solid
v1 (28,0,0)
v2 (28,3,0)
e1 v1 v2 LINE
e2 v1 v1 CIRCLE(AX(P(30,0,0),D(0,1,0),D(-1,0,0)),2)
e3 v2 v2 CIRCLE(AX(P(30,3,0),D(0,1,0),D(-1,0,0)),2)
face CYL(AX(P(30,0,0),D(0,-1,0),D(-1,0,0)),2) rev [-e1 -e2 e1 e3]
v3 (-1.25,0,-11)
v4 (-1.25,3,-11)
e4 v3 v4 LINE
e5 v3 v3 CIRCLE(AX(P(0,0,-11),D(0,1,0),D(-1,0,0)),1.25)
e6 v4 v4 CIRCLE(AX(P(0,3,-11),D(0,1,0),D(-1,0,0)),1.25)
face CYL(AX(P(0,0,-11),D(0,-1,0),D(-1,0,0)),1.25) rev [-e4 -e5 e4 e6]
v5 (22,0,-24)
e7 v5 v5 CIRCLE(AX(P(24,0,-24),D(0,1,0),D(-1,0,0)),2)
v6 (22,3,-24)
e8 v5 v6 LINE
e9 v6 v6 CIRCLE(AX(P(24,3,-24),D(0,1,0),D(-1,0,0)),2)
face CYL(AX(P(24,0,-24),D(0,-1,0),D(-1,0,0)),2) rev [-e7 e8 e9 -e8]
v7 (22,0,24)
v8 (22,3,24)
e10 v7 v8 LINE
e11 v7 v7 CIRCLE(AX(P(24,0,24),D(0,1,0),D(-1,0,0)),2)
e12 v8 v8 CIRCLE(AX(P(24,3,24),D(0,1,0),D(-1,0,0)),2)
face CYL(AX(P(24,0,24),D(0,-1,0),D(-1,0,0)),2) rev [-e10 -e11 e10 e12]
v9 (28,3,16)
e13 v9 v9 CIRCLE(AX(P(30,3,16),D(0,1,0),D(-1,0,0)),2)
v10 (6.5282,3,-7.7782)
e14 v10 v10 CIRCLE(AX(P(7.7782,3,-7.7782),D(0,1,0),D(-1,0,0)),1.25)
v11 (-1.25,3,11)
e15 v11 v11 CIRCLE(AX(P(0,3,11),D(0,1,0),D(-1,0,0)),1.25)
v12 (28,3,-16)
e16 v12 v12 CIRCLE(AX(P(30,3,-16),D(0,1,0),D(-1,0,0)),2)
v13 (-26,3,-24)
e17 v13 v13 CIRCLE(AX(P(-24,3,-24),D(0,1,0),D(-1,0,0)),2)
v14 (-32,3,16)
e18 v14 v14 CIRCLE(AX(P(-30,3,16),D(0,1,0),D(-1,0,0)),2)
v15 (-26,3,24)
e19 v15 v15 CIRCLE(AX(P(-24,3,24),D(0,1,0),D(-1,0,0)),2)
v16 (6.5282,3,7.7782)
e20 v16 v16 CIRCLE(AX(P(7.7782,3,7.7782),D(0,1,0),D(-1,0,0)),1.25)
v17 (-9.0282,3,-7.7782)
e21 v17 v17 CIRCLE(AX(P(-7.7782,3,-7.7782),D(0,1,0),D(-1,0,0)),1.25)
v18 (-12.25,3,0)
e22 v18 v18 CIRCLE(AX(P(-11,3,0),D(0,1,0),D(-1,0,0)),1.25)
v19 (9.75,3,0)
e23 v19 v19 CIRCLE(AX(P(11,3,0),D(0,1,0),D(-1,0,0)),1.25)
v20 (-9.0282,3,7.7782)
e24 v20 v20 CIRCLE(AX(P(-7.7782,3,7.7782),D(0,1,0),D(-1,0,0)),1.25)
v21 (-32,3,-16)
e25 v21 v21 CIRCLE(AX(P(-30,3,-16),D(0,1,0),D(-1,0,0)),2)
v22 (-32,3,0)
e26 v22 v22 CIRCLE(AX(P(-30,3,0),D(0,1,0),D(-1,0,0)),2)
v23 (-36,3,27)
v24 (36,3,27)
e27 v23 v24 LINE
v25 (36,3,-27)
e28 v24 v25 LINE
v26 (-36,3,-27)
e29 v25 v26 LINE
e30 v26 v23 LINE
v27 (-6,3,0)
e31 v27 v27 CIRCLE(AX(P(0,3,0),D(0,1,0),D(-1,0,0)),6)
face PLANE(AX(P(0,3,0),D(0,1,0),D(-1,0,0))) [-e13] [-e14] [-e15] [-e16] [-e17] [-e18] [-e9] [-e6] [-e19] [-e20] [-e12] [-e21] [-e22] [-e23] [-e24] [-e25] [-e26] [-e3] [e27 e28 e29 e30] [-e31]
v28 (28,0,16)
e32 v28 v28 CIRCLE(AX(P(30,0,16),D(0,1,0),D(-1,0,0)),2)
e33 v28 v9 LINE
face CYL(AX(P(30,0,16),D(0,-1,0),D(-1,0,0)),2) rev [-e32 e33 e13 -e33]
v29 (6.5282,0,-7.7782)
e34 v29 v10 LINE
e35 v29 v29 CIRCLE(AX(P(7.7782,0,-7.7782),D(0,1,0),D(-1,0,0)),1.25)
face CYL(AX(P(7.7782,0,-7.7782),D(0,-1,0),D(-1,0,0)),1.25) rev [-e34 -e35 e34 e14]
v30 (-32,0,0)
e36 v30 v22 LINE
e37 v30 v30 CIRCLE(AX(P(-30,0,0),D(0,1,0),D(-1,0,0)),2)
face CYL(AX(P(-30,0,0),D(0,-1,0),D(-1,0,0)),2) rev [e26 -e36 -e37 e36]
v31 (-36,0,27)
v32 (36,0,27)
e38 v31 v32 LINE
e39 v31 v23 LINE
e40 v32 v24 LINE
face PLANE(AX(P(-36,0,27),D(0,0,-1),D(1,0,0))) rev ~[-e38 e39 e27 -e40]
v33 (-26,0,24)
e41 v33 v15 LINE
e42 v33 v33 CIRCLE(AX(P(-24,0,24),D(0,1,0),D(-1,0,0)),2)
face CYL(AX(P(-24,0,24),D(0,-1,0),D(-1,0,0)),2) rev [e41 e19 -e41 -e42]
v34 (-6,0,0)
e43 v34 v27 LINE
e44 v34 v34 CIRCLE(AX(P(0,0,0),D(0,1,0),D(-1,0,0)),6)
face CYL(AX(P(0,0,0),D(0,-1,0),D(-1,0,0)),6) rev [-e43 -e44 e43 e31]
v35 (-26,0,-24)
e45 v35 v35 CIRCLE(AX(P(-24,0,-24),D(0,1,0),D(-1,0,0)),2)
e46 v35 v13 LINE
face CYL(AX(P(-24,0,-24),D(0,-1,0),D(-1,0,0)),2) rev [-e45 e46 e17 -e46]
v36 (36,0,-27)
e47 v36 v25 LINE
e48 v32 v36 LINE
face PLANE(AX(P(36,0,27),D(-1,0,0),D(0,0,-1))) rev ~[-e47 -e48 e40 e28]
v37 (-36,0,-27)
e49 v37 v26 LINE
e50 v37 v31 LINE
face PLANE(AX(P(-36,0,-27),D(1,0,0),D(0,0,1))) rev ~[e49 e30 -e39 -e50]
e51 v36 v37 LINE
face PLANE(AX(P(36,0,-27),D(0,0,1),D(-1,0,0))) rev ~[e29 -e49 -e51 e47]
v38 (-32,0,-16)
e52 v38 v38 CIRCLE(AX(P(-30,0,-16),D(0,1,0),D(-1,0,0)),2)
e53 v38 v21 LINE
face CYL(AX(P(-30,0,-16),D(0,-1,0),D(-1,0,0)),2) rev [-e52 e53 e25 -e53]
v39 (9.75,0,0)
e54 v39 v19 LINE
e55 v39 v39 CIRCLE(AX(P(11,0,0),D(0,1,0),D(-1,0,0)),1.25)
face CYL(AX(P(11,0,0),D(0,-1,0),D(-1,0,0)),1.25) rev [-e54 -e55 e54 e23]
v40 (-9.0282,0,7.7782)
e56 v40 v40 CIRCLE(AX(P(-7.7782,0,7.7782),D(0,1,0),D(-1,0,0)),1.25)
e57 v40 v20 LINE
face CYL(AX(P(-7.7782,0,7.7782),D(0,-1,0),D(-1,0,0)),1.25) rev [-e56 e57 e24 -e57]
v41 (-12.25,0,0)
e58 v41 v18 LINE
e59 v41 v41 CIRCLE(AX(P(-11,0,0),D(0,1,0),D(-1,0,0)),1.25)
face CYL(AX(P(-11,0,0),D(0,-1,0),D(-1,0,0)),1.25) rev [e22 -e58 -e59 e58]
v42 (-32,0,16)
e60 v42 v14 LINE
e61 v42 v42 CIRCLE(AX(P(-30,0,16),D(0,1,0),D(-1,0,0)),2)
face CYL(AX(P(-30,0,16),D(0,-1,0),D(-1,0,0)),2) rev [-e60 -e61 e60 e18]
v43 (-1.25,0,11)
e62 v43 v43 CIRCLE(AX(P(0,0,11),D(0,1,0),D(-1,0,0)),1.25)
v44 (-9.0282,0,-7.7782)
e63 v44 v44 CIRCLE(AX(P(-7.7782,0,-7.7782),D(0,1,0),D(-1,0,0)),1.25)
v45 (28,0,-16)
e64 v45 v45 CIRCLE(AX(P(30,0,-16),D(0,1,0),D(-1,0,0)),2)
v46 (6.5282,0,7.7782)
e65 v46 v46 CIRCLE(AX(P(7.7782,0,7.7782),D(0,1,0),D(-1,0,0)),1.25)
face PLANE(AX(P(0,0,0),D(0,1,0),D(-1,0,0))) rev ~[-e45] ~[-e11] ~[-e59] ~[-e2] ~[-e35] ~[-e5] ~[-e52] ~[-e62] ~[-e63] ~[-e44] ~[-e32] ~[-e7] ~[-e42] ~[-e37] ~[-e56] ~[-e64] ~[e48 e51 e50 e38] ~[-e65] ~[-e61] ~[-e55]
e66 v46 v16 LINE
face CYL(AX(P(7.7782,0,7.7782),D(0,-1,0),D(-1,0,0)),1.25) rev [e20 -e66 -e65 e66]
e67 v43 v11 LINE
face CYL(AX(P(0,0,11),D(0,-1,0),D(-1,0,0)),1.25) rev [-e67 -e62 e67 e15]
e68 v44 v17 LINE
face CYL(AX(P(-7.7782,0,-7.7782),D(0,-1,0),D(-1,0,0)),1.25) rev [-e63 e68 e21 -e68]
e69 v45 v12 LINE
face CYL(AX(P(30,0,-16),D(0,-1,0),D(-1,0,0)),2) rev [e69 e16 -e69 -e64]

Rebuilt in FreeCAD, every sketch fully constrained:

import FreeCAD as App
import Part
import Sketcher
from FreeCAD import Vector

doc = App.newDocument("Part")
body = doc.addObject("PartDesign::Body", "Body")

# Sketch on XZ plane
sketch1 = body.newObject("Sketcher::SketchObject", "Sketch")
sketch1.AttachmentSupport = (doc.getObject("XZ_Plane"), [""])
sketch1.MapMode = "FlatFace"
sketch1.addGeometry([
    Part.LineSegment(Vector(-36, -27, 0), Vector(-36, 27, 0)),  # 0
    Part.LineSegment(Vector(-36, 27, 0), Vector(36, 27, 0)),  # 1
    Part.LineSegment(Vector(36, 27, 0), Vector(36, -27, 0)),  # 2
    Part.LineSegment(Vector(36, -27, 0), Vector(-36, -27, 0)),  # 3
    Part.Circle(Vector(24, -24, 0), Vector(0, 0, 1), 2),  # 4
    Part.Circle(Vector(30, -16, 0), Vector(0, 0, 1), 2),  # 5
    Part.Circle(Vector(7.8, -7.8, 0), Vector(0, 0, 1), 1.2),  # 6
    Part.Circle(Vector(-24, -24, 0), Vector(0, 0, 1), 2),  # 7
    Part.Circle(Vector(-30, -16, 0), Vector(0, 0, 1), 2),  # 8
    Part.Circle(Vector(0, -11, 0), Vector(0, 0, 1), 1.2),  # 9
    Part.Circle(Vector(-7.8, -7.8, 0), Vector(0, 0, 1), 1.2),  # 10
    Part.Circle(Vector(30, 0, 0), Vector(0, 0, 1), 2),  # 11
    Part.Circle(Vector(11, 0, 0), Vector(0, 0, 1), 1.2),  # 12
    Part.Circle(Vector(7.8, 7.8, 0), Vector(0, 0, 1), 1.2),  # 13
    Part.Circle(Vector(30, 16, 0), Vector(0, 0, 1), 2),  # 14
    Part.Circle(Vector(24, 24, 0), Vector(0, 0, 1), 2),  # 15
    Part.Circle(Vector(0, 0, 0), Vector(0, 0, 1), 6),  # 16
    Part.Circle(Vector(-11, 0, 0), Vector(0, 0, 1), 1.2),  # 17
    Part.Circle(Vector(-7.8, 7.8, 0), Vector(0, 0, 1), 1.2),  # 18
    Part.Circle(Vector(0, 11, 0), Vector(0, 0, 1), 1.2),  # 19
    Part.Circle(Vector(-30, 0, 0), Vector(0, 0, 1), 2),  # 20
    Part.Circle(Vector(-30, 16, 0), Vector(0, 0, 1), 2),  # 21
    Part.Circle(Vector(-24, 24, 0), Vector(0, 0, 1), 2),  # 22
], False)
sketch1.addConstraint([
    Sketcher.Constraint("Coincident", 0, 2, 1, 1),
    Sketcher.Constraint("Coincident", 1, 2, 2, 1),
    Sketcher.Constraint("Coincident", 2, 2, 3, 1),
    Sketcher.Constraint("Coincident", 3, 2, 0, 1),
    Sketcher.Constraint("Vertical", 0),
    Sketcher.Constraint("Horizontal", 1),
    Sketcher.Constraint("Vertical", 2),
    Sketcher.Constraint("Horizontal", 3),
    Sketcher.Constraint("Coincident", 16, 3, -1, 1),
    Sketcher.Constraint("Equal", 4, 5),
    Sketcher.Constraint("Equal", 5, 7),
    Sketcher.Constraint("Equal", 7, 8),
    Sketcher.Constraint("Equal", 6, 9),
    Sketcher.Constraint("Equal", 9, 10),
    Sketcher.Constraint("Equal", 8, 11),
    Sketcher.Constraint("Equal", 10, 12),
    Sketcher.Constraint("Equal", 12, 13),
    Sketcher.Constraint("Equal", 11, 14),
    Sketcher.Constraint("Equal", 14, 15),
    Sketcher.Constraint("Equal", 13, 17),
    Sketcher.Constraint("Equal", 17, 18),
    Sketcher.Constraint("Equal", 18, 19),
    Sketcher.Constraint("Equal", 15, 20),
    Sketcher.Constraint("Equal", 20, 21),
    Sketcher.Constraint("Equal", 21, 22),
    Sketcher.Constraint("Symmetric", 10, 3, 13, 3, -1, 1),
    Sketcher.Constraint("Symmetric", 8, 3, 14, 3, -1, 1),
    Sketcher.Constraint("Symmetric", 7, 3, 15, 3, -1, 1),
    Sketcher.Constraint("Symmetric", 12, 3, 17, 3, -1, 1),
    Sketcher.Constraint("Symmetric", 6, 3, 18, 3, -1, 1),
    Sketcher.Constraint("Symmetric", 9, 3, 19, 3, -1, 1),
    Sketcher.Constraint("Symmetric", 11, 3, 20, 3, -1, 1),
    Sketcher.Constraint("Symmetric", 5, 3, 21, 3, -1, 1),
    Sketcher.Constraint("Symmetric", 4, 3, 22, 3, -1, 1),
    Sketcher.Constraint("Symmetric", 0, 2, 2, 2, -1, 1),
    Sketcher.Constraint("Symmetric", 4, 3, 7, 3, -2),
    Sketcher.Constraint("Symmetric", 5, 3, 8, 3, -2),
    Sketcher.Constraint("Symmetric", 6, 3, 10, 3, -2),
    Sketcher.Constraint("PointOnObject", 9, 3, -2),
    Sketcher.Constraint("PointOnObject", 11, 3, -1),
    Sketcher.Constraint("PointOnObject", 12, 3, -1),
    Sketcher.Constraint("Vertical", 5, 3, 11, 3),
    Sketcher.Constraint("Diameter", 4, 4.0),
    Sketcher.Constraint("Diameter", 16, 12.0),
    Sketcher.Constraint("Diameter", 6, 2.5),
    Sketcher.Constraint("DistanceX", 1, 1, 1, 2, 72.0),
    Sketcher.Constraint("DistanceY", 0, 1, 0, 2, 54.0),
    Sketcher.Constraint("DistanceX", -1, 1, 4, 3, 24.0),
    Sketcher.Constraint("DistanceY", 4, 3, -1, 1, 24.0),
    Sketcher.Constraint("DistanceY", 9, 3, -1, 1, 11.0),
    Sketcher.Constraint("DistanceX", -1, 1, 12, 3, 11.0),
    Sketcher.Constraint("DistanceX", 4, 3, 5, 3, 6.0),
    Sketcher.Constraint("DistanceY", 4, 3, 5, 3, 8.0),
    Sketcher.Constraint("DistanceX", -1, 1, 6, 3, 7.7782),
    Sketcher.Constraint("DistanceY", 6, 3, -1, 1, 7.7782),
])
pad1 = body.newObject("PartDesign::Pad", "Pad")
pad1.Profile = sketch1
pad1.Length = 3
pad1.Reversed = True

doc.recompute()
